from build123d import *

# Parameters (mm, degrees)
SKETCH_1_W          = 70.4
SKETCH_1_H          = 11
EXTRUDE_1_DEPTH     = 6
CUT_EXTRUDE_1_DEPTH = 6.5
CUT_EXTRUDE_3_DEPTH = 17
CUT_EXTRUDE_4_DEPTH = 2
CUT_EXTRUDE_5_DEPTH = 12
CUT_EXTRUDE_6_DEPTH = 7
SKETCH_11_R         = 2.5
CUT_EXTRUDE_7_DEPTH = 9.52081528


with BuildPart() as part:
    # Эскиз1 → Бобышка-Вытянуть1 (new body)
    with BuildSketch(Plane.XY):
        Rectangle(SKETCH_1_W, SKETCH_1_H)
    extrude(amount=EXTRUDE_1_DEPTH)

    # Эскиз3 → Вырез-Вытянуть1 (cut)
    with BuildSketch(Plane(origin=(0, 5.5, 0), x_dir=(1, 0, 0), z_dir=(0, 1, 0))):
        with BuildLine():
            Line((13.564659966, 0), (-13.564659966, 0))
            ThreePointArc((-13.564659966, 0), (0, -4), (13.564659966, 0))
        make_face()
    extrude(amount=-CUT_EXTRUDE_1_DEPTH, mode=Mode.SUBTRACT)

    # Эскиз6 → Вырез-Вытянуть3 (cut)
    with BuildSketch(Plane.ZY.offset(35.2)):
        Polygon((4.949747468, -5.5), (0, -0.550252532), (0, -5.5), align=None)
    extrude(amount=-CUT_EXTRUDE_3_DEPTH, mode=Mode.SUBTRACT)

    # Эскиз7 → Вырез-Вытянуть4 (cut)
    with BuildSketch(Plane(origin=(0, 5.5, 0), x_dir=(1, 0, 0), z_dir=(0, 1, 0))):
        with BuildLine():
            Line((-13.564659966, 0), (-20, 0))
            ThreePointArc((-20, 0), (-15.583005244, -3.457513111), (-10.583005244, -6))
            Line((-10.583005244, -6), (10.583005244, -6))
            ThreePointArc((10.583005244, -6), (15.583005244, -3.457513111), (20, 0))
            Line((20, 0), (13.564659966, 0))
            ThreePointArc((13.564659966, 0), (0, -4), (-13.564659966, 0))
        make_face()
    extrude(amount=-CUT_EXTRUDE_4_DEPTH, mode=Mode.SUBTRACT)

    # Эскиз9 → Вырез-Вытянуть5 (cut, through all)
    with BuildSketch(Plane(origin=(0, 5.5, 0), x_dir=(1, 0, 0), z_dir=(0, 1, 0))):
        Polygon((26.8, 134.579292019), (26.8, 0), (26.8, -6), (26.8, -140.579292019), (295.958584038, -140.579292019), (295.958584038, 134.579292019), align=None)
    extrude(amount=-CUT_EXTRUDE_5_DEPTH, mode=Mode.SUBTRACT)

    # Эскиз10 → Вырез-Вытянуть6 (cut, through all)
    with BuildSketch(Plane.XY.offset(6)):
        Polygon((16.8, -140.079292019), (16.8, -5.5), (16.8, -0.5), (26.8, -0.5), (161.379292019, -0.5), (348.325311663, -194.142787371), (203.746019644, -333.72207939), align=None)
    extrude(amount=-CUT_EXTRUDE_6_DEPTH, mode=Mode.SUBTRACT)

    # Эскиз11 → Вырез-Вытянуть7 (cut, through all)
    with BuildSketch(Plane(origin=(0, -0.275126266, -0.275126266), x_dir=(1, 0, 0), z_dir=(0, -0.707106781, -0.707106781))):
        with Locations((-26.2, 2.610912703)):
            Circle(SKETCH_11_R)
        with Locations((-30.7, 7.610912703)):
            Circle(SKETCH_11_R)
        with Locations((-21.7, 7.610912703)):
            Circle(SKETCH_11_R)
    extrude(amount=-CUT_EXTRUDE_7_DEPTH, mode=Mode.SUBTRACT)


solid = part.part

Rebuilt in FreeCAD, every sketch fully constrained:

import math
import FreeCAD as App
import Part
import Sketcher

V = App.Vector
Q = App.Units.Quantity


def add_polygon(sketch, points):
    """Adds a closed chain of lines whose ends are joined by coincident constraints."""
    first, n = sketch.GeometryCount, len(points)
    for a, b in zip(points, points[1:] + points[:1]):
        sketch.addGeometry(Part.LineSegment(App.Vector(*a, 0), App.Vector(*b, 0)), False)
    for i in range(n):
        sketch.addConstraint(Sketcher.Constraint("Coincident", first + i, 2, first + (i + 1) % n, 1))

doc = App.newDocument("Part")
params = doc.addObject("Spreadsheet::Sheet", "Params")
for row, (alias, value) in enumerate([
    ("sketch1_height", "11 mm"),
    ("sketch1_width", "70.4 mm"),
    ("pad1_length", "6 mm"),
    ("sketch2_radius", "25 mm"),
    ("pocket1_length", "6.5 mm"),
    ("sketch3_length", "7 mm"),
    ("pocket2_length", "17 mm"),
    ("sketch4_radius", "29 mm"),
    ("sketch4_radius2", "25 mm"),
    ("pocket3_length", "2 mm"),
    ("sketch7_diameter", "5 mm"),
], start=1):
    params.set(f"A{row}", alias)
    params.set(f"B{row}", "=" + value)
    params.setAlias(f"B{row}", alias)

body = doc.addObject("PartDesign::Body", "Body")

# Sketch on XY plane
sketch1 = body.newObject("Sketcher::SketchObject", "Sketch")
sketch1.AttachmentSupport = (doc.getObject("XY_Plane"), [""])
sketch1.MapMode = "FlatFace"
add_polygon(sketch1, [(-35, 6), (-35, -6), (35, -6), (35, 6)])  # lines 0-3
sketch1.addConstraint([
    Sketcher.Constraint("Vertical", 0),
    Sketcher.Constraint("Horizontal", 1),
    Sketcher.Constraint("Vertical", 2),
    Sketcher.Constraint("Horizontal", 3),
    Sketcher.Constraint("Symmetric", 0, 2, 2, 2, -1, 1),
    Sketcher.Constraint("DistanceY", 0, 2, 0, 1, Q("11 mm")),
    Sketcher.Constraint("DistanceX", 1, 1, 1, 2, Q("70.4 mm")),
])
sketch1.setExpression("Constraints[9]", "Params.sketch1_height")
sketch1.setExpression("Constraints[10]", "Params.sketch1_width")
pad1 = body.newObject("PartDesign::Pad", "Pad")
pad1.Profile = sketch1
pad1.setExpression("Length", "Params.pad1_length")

# Sketch on XZ plane
sketch2 = body.newObject("Sketcher::SketchObject", "Sketch001")
sketch2.AttachmentSupport = (doc.getObject("XZ_Plane"), [""])
sketch2.MapMode = "FlatFace"
sketch2.AttachmentOffset = App.Placement(V(0, 0, -5.5), App.Rotation())
sketch2.addGeometry([
    Part.LineSegment(V(14, 0, 0), V(-14, 0, 0)),
    Part.ArcOfCircle(Part.Circle(V(0, -21, 0), V(0, 0, 1), 25), math.radians(57), math.radians(123)),
], False)
sketch2.addConstraint([
    Sketcher.Constraint("Coincident", 0, 1, 1, 1),
    Sketcher.Constraint("Coincident", 1, 2, 0, 2),
    Sketcher.Constraint("Horizontal", 0),
    Sketcher.Constraint("Symmetric", 0, 1, 1, 2, -1, 1),
    Sketcher.Constraint("Radius", 1, Q("25 mm")),
    Sketcher.Constraint("DistanceY", 1, 3, -1, 1, Q("21 mm")),
])
sketch2.setExpression("Constraints[4]", "Params.sketch2_radius")
pocket1 = body.newObject("PartDesign::Pocket", "Pocket")
pocket1.Profile = sketch2
pocket1.setExpression("Length", "Params.pocket1_length")
pocket1.Reversed = True

# Sketch on YZ plane
sketch3 = body.newObject("Sketcher::SketchObject", "Sketch002")
sketch3.AttachmentSupport = (doc.getObject("YZ_Plane"), [""])
sketch3.MapMode = "FlatFace"
sketch3.AttachmentOffset = App.Placement(V(0, 0, -35.2), App.Rotation())
add_polygon(sketch3, [(-5.5, 4.9), (-0.6, 0), (-5.5, 0)])  # lines 0-2
sketch3.addConstraint([
    Sketcher.Constraint("Horizontal", 1),
    Sketcher.Constraint("Vertical", 2),
    Sketcher.Constraint("PointOnObject", 0, 2, -1),
    Sketcher.Constraint("Equal", 1, 2),
    Sketcher.Constraint("Distance", 0, Q("7 mm")),
    Sketcher.Constraint("DistanceX", 1, 2, -1, 1, Q("5.5 mm")),
])
sketch3.setExpression("Constraints[7]", "Params.sketch3_length")
pocket2 = body.newObject("PartDesign::Pocket", "Pocket001")
pocket2.Profile = sketch3
pocket2.setExpression("Length", "Params.pocket2_length")
pocket2.Reversed = True

# Sketch on XZ plane
sketch4 = body.newObject("Sketcher::SketchObject", "Sketch003")
sketch4.AttachmentSupport = (doc.getObject("XZ_Plane"), [""])
sketch4.MapMode = "FlatFace"
sketch4.AttachmentOffset = App.Placement(V(0, 0, -5.5), App.Rotation())
sketch4.addGeometry([
    Part.LineSegment(V(-14, 0, 0), V(-20, 0, 0)),  # 0
    Part.ArcOfCircle(Part.Circle(V(0, -21, 0), V(0, 0, 1), 29), math.radians(111), math.radians(134)),  # 1
    Part.LineSegment(V(-11, 6, 0), V(11, 6, 0)),  # 2
    Part.ArcOfCircle(Part.Circle(V(0, -21, 0), V(0, 0, 1), 29), math.radians(46), math.radians(69)),  # 3
    Part.LineSegment(V(20, 0, 0), V(14, 0, 0)),  # 4
    Part.ArcOfCircle(Part.Circle(V(0, -21, 0), V(0, 0, 1), 25), math.radians(57), math.radians(123)),  # 5
], False)
sketch4.addConstraint([
    Sketcher.Constraint("Coincident", 0, 2, 1, 2),
    Sketcher.Constraint("Coincident", 1, 1, 2, 1),
    Sketcher.Constraint("Coincident", 2, 2, 3, 2),
    Sketcher.Constraint("Coincident", 3, 1, 4, 1),
    Sketcher.Constraint("Coincident", 4, 2, 5, 1),
    Sketcher.Constraint("Coincident", 5, 2, 0, 1),
    Sketcher.Constraint("Horizontal", 0),
    Sketcher.Constraint("Horizontal", 2),
    Sketcher.Constraint("Horizontal", 4),
    Sketcher.Constraint("Coincident", 3, 3, 1, 3),
    Sketcher.Constraint("Coincident", 5, 3, 1, 3),
    Sketcher.Constraint("Equal", 1, 3),
    Sketcher.Constraint("Symmetric", 0, 2, 3, 1, -1, 1),
    Sketcher.Constraint("PointOnObject", 1, 3, -2),
    Sketcher.Constraint("Radius", 1, Q("29 mm")),
    Sketcher.Constraint("Radius", 5, Q("25 mm")),
    Sketcher.Constraint("DistanceY", 1, 3, -1, 1, Q("21 mm")),
    Sketcher.Constraint("DistanceY", -1, 1, 1, 1, Q("6 mm")),
])
sketch4.setExpression("Constraints[14]", "Params.sketch4_radius")
sketch4.setExpression("Constraints[15]", "Params.sketch4_radius2")
pocket3 = body.newObject("PartDesign::Pocket", "Pocket002")
pocket3.Profile = sketch4
pocket3.setExpression("Length", "Params.pocket3_length")
pocket3.Reversed = True

# Sketch on XZ plane
sketch5 = body.newObject("Sketcher::SketchObject", "Sketch004")
sketch5.AttachmentSupport = (doc.getObject("XZ_Plane"), [""])
sketch5.MapMode = "FlatFace"
sketch5.AttachmentOffset = App.Placement(V(0, 0, -5.5), App.Rotation())
add_polygon(sketch5, [(27, -135), (27, 141), (296, 141), (296, -135)])  # lines 0-3
sketch5.addConstraint([
    Sketcher.Constraint("Vertical", 0),
    Sketcher.Constraint("Horizontal", 1),
    Sketcher.Constraint("Vertical", 2),
    Sketcher.Constraint("Horizontal", 3),
    Sketcher.Constraint("DistanceX", -1, 1, 0, 2, Q("26.8 mm")),
    Sketcher.Constraint("DistanceX", 1, 1, 1, 2, Q("269.158584 mm")),
    Sketcher.Constraint("DistanceY", 0, 1, 0, 2, Q("275.158584 mm")),
    Sketcher.Constraint("DistanceY", -1, 1, 0, 2, Q("140.579292 mm")),
])
pocket4 = body.newObject("PartDesign::Pocket", "Pocket003")
pocket4.Profile = sketch5
pocket4.Type = "ThroughAll"
pocket4.Reversed = True

# Sketch on XY plane
sketch6 = body.newObject("Sketcher::SketchObject", "Sketch005")
sketch6.AttachmentSupport = (doc.getObject("XY_Plane"), [""])
sketch6.MapMode = "FlatFace"
sketch6.AttachmentOffset = App.Placement(V(0, 0, 6), App.Rotation())
add_polygon(sketch6, [(17, 0), (17, -140), (204, -334), (348, -194), (161, 0)])  # lines 0-4
sketch6.addConstraint([
    Sketcher.Constraint("Vertical", 0),
    Sketcher.Constraint("Horizontal", 4),
    Sketcher.Constraint("Perpendicular", 1, 2),
    Sketcher.Constraint("Perpendicular", 2, 3),
    Sketcher.Constraint("Equal", 1, 3),
    Sketcher.Constraint("DistanceX", -1, 1, 0, 2, Q("16.8 mm")),
    Sketcher.Constraint("DistanceY", 3, 2, -1, 1, Q("0.5 mm")),
    Sketcher.Constraint("DistanceX", 4, 2, 4, 1, Q("144.579292 mm")),
    Sketcher.Constraint("DistanceY", 0, 2, 0, 1, Q("139.579292 mm")),
    Sketcher.Constraint("DistanceX", -1, 1, 1, 2, Q("203.74602 mm")),
])
pocket5 = body.newObject("PartDesign::Pocket", "Pocket004")
pocket5.Profile = sketch6
pocket5.Type = "ThroughAll"

# Sketch on an angled plane
sketch7 = body.newObject("Sketcher::SketchObject", "Sketch006")
sketch7.Placement = App.Placement(V(0, -0.275126, -0.275126), App.Rotation(V(1, 0, 0), V(0, -0.707106781, 0.707106781), V(0, -0.707106781, -0.707106781), "ZXY"))
sketch7.addGeometry([
    Part.Circle(V(-26.2, 2.6, 0), V(0, 0, 1), 2.5),
    Part.Circle(V(-30.7, 7.6, 0), V(0, 0, 1), 2.5),
    Part.Circle(V(-21.7, 7.6, 0), V(0, 0, 1), 2.5),
], False)
sketch7.addConstraint([
    Sketcher.Constraint("Equal", 0, 1),
    Sketcher.Constraint("Equal", 1, 2),
    Sketcher.Constraint("Horizontal", 1, 3, 2, 3),
    Sketcher.Constraint("Diameter", 0, Q("5 mm")),
    Sketcher.Constraint("DistanceY", 0, 3, 1, 3, Q("5 mm")),
    Sketcher.Constraint("DistanceX", 1, 3, 2, 3, Q("9 mm")),
    Sketcher.Constraint("DistanceX", 0, 3, -1, 1, Q("26.2 mm")),
    Sketcher.Constraint("DistanceX", 1, 3, -1, 1, Q("30.7 mm")),
    Sketcher.Constraint("DistanceY", -1, 1, 0, 3, Q("2.610913 mm")),
])
sketch7.setExpression("Constraints[3]", "Params.sketch7_diameter")
pocket6 = body.newObject("PartDesign::Pocket", "Pocket005")
pocket6.Profile = sketch7
pocket6.Type = "ThroughAll"

doc.recompute()
